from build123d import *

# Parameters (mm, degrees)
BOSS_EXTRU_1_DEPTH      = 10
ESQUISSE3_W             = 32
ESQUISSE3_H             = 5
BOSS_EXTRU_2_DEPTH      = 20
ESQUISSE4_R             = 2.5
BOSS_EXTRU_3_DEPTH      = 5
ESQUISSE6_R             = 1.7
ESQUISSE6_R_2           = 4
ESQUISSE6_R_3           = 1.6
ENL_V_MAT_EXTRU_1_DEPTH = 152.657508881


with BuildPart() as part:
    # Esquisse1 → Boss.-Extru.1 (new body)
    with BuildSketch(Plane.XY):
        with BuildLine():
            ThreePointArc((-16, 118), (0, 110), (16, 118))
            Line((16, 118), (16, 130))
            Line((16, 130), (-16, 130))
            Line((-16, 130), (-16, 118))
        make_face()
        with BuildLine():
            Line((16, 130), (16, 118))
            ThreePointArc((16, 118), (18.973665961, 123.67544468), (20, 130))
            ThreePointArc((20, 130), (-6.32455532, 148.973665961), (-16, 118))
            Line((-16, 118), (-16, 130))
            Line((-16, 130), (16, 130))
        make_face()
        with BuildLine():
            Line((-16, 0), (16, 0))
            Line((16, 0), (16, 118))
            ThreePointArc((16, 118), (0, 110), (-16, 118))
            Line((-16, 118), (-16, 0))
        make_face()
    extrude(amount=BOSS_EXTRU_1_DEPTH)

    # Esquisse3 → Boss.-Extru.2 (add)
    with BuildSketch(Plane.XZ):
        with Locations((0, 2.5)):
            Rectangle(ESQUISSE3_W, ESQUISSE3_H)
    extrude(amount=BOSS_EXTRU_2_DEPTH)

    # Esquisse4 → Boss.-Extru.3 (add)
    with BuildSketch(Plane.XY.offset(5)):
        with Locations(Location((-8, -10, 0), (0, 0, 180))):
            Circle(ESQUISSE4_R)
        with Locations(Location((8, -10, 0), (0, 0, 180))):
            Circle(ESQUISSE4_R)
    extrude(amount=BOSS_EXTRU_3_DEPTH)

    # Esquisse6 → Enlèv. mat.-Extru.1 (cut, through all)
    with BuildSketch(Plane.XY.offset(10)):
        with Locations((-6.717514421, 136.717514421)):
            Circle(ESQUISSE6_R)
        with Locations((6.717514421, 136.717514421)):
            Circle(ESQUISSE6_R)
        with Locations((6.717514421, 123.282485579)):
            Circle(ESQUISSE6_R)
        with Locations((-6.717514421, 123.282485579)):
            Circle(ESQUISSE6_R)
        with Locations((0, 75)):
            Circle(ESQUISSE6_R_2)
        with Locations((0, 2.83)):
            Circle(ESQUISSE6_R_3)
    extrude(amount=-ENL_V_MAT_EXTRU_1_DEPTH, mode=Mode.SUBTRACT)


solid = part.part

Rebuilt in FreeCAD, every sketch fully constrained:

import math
import FreeCAD as App
import Part
import Sketcher
from FreeCAD import Vector

doc = App.newDocument("Part")
body = doc.addObject("PartDesign::Body", "Body")

# Sketch on XY plane
sketch1 = body.newObject("Sketcher::SketchObject", "Sketch")
sketch1.AttachmentSupport = (doc.getObject("XY_Plane"), [""])
sketch1.MapMode = "FlatFace"
sketch1.addGeometry([
    Part.ArcOfCircle(Part.Circle(Vector(0, 130, 0), Vector(0, 0, 1), 20), math.radians(-36.869898), math.radians(0)),  # 0
    Part.ArcOfCircle(Part.Circle(Vector(0, 130, 0), Vector(0, 0, 1), 20), math.radians(0), math.radians(216.869898)),  # 1
    Part.LineSegment(Vector(-16, 118, 0), Vector(-16, 0, 0)),  # 2
    Part.LineSegment(Vector(-16, 0, 0), Vector(16, 0, 0)),  # 3
    Part.LineSegment(Vector(16, 0, 0), Vector(16, 118, 0)),  # 4
], False)
sketch1.addConstraint([
    Sketcher.Constraint("Tangent", 0, 2, 1, 1),
    Sketcher.Constraint("Coincident", 1, 2, 2, 1),
    Sketcher.Constraint("Coincident", 2, 2, 3, 1),
    Sketcher.Constraint("Coincident", 3, 2, 4, 1),
    Sketcher.Constraint("Coincident", 4, 2, 0, 1),
    Sketcher.Constraint("Vertical", 2),
    Sketcher.Constraint("Horizontal", 3),
    Sketcher.Constraint("Vertical", 4),
    Sketcher.Constraint("Equal", 0, 1),
    Sketcher.Constraint("Symmetric", 2, 2, 3, 2, -1, 1),
    Sketcher.Constraint("PointOnObject", 0, 3, -2),
    Sketcher.Constraint("Horizontal", 1, 3, 0, 2),
    Sketcher.Constraint("Radius", 0, 20.0),
    Sketcher.Constraint("DistanceX", 3, 1, 3, 2, 32.0),
    Sketcher.Constraint("DistanceY", 2, 2, 2, 1, 118.0),
])
pad1 = body.newObject("PartDesign::Pad", "Pad")
pad1.Profile = sketch1
pad1.Length = 10

# Sketch on XZ plane
sketch2 = body.newObject("Sketcher::SketchObject", "Sketch001")
sketch2.AttachmentSupport = (doc.getObject("XZ_Plane"), [""])
sketch2.MapMode = "FlatFace"
sketch2.addGeometry([
    Part.LineSegment(Vector(-16, 5, 0), Vector(-16, 0, 0)),
    Part.LineSegment(Vector(-16, 0, 0), Vector(16, 0, 0)),
    Part.LineSegment(Vector(16, 0, 0), Vector(16, 5, 0)),
    Part.LineSegment(Vector(16, 5, 0), Vector(-16, 5, 0)),
], False)
sketch2.addConstraint([
    Sketcher.Constraint("Coincident", 0, 2, 1, 1),
    Sketcher.Constraint("Coincident", 1, 2, 2, 1),
    Sketcher.Constraint("Coincident", 2, 2, 3, 1),
    Sketcher.Constraint("Coincident", 3, 2, 0, 1),
    Sketcher.Constraint("Vertical", 0),
    Sketcher.Constraint("Horizontal", 1),
    Sketcher.Constraint("Vertical", 2),
    Sketcher.Constraint("Horizontal", 3),
    Sketcher.Constraint("Symmetric", 0, 2, 1, 2, -1, 1),
    Sketcher.Constraint("DistanceX", 1, 1, 1, 2, 32.0),
    Sketcher.Constraint("DistanceY", 0, 2, 0, 1, 5.0),
])
pad2 = body.newObject("PartDesign::Pad", "Pad001")
pad2.Profile = sketch2
pad2.Length = 20

# Sketch on XY plane
sketch3 = body.newObject("Sketcher::SketchObject", "Sketch002")
sketch3.AttachmentSupport = (doc.getObject("XY_Plane"), [""])
sketch3.MapMode = "FlatFace"
sketch3.AttachmentOffset = App.Placement(Vector(0, 0, 5), App.Rotation())
sketch3.addGeometry([
    Part.Circle(Vector(-8, -10, 0), Vector(0, 0, 1), 2.5),
    Part.Circle(Vector(8, -10, 0), Vector(0, 0, 1), 2.5),
], False)
sketch3.addConstraint([
    Sketcher.Constraint("Equal", 0, 1),
    Sketcher.Constraint("Symmetric", 0, 3, 1, 3, -2),
    Sketcher.Constraint("Diameter", 0, 5.0),
    Sketcher.Constraint("DistanceX", 0, 3, -1, 1, 8.0),
    Sketcher.Constraint("DistanceY", 0, 3, -1, 1, 10.0),
])
pad3 = body.newObject("PartDesign::Pad", "Pad002")
pad3.Profile = sketch3
pad3.Length = 5

# Sketch on XY plane
sketch4 = body.newObject("Sketcher::SketchObject", "Sketch003")
sketch4.AttachmentSupport = (doc.getObject("XY_Plane"), [""])
sketch4.MapMode = "FlatFace"
sketch4.AttachmentOffset = App.Placement(Vector(0, 0, 10), App.Rotation())
sketch4.addGeometry([
    Part.Circle(Vector(-6.717514, 136.717514, 0), Vector(0, 0, 1), 1.7),  # 0
    Part.Circle(Vector(6.717514, 136.717514, 0), Vector(0, 0, 1), 1.7),  # 1
    Part.Circle(Vector(6.717514, 123.282486, 0), Vector(0, 0, 1), 1.7),  # 2
    Part.Circle(Vector(-6.717514, 123.282486, 0), Vector(0, 0, 1), 1.7),  # 3
    Part.Circle(Vector(0, 75, 0), Vector(0, 0, 1), 4),  # 4
    Part.Circle(Vector(0, 2.83, 0), Vector(0, 0, 1), 1.6),  # 5
], False)
sketch4.addConstraint([
    Sketcher.Constraint("Equal", 0, 1),
    Sketcher.Constraint("Equal", 1, 2),
    Sketcher.Constraint("Equal", 2, 3),
    Sketcher.Constraint("Symmetric", 0, 3, 1, 3, -2),
    Sketcher.Constraint("Symmetric", 2, 3, 3, 3, -2),
    Sketcher.Constraint("PointOnObject", 4, 3, -2),
    Sketcher.Constraint("PointOnObject", 5, 3, -2),
    Sketcher.Constraint("Vertical", 1, 3, 2, 3),
    Sketcher.Constraint("Diameter", 4, 8.0),
    Sketcher.Constraint("Diameter", 0, 3.4),
    Sketcher.Constraint("Diameter", 5, 3.2),
    Sketcher.Constraint("DistanceY", -1, 1, 4, 3, 75.0),
    Sketcher.Constraint("DistanceY", -1, 1, 5, 3, 2.83),
    Sketcher.Constraint("DistanceX", 0, 3, 1, 3, 13.435029),
    Sketcher.Constraint("DistanceY", 2, 3, 1, 3, 13.435029),
    Sketcher.Constraint("DistanceY", -1, 1, 0, 3, 136.717514),
])
pocket1 = body.newObject("PartDesign::Pocket", "Pocket")
pocket1.Profile = sketch4
pocket1.Type = "ThroughAll"

doc.recompute()
